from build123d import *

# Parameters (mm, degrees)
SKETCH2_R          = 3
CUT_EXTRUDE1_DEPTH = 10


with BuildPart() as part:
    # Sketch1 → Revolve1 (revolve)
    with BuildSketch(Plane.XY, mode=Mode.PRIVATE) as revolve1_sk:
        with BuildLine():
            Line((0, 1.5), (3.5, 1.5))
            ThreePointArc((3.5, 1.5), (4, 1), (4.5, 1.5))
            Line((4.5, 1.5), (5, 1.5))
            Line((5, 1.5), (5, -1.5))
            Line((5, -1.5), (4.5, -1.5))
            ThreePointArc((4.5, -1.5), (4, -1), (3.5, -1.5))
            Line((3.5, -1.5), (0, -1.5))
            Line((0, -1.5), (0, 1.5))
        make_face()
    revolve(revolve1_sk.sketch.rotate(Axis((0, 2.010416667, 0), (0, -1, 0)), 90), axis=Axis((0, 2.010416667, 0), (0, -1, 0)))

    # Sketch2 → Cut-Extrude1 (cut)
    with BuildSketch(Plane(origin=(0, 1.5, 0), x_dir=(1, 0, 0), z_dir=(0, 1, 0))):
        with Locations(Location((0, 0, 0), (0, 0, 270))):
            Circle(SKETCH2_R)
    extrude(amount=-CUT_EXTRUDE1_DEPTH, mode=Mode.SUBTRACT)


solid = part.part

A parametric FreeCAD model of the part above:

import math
import FreeCAD as App
import Part
import Sketcher
from FreeCAD import Vector

doc = App.newDocument("Part")
body = doc.addObject("PartDesign::Body", "Body")

sketch1 = doc.addObject("Sketcher::SketchObject", "Sketch")
body.addObject(sketch1)
sketch1.AttachmentSupport = (doc.XY_Plane, [""])
sketch1.MapMode = "FlatFace"
sketch1.addGeometry([
    Part.LineSegment(Vector(3.5, 1.5, 0), Vector(0, 1.5, 0)),
    Part.LineSegment(Vector(0, 1.5, 0), Vector(0, -1.5, 0)),
    Part.LineSegment(Vector(0, -1.5, 0), Vector(3.5, -1.5, 0)),
    Part.ArcOfCircle(Part.Circle(Vector(4, -1.5, 0), Vector(0, 0, 1), 0.5), math.radians(0), math.radians(180)),
    Part.LineSegment(Vector(4.5, -1.5, 0), Vector(5, -1.5, 0)),
    Part.LineSegment(Vector(5, -1.5, 0), Vector(5, 1.5, 0)),
    Part.LineSegment(Vector(5, 1.5, 0), Vector(4.5, 1.5, 0)),
    Part.ArcOfCircle(Part.Circle(Vector(4, 1.5, 0), Vector(0, 0, 1), 0.5), math.radians(180), math.radians(360)),
], False)
sketch1.addConstraint([
    Sketcher.Constraint("Coincident", 0, 2, 1, 1),
    Sketcher.Constraint("Coincident", 1, 2, 2, 1),
    Sketcher.Constraint("Coincident", 2, 2, 3, 2),
    Sketcher.Constraint("Coincident", 3, 1, 4, 1),
    Sketcher.Constraint("Coincident", 4, 2, 5, 1),
    Sketcher.Constraint("Coincident", 5, 2, 6, 1),
    Sketcher.Constraint("Coincident", 6, 2, 7, 2),
    Sketcher.Constraint("Coincident", 7, 1, 0, 1),
    Sketcher.Constraint("Horizontal", 0),
    Sketcher.Constraint("Vertical", 1),
    Sketcher.Constraint("Horizontal", 2),
    Sketcher.Constraint("Horizontal", 4),
    Sketcher.Constraint("Vertical", 5),
    Sketcher.Constraint("Horizontal", 6),
    Sketcher.Constraint("Equal", 3, 7),
    Sketcher.Constraint("Symmetric", 0, 2, 1, 2, -1, 1),
    Sketcher.Constraint("Symmetric", 3, 3, 7, 3, -1),
    Sketcher.Constraint("Horizontal", 7, 3, 0, 2),
    Sketcher.Constraint("Horizontal", 2, 2, 3, 1),
    Sketcher.Constraint("Horizontal", 0, 2, 5, 2),
    Sketcher.Constraint("Radius", 3, 0.5),
    Sketcher.Constraint("DistanceY", 1, 2, 1, 1, 3.0),
    Sketcher.Constraint("DistanceX", 0, 2, 0, 1, 3.5),
    Sketcher.Constraint("DistanceX", 4, 1, 4, 2, 0.5),
])
revolution = doc.addObject("PartDesign::Revolution", "Revolution")
body.addObject(revolution)
revolution.Profile = sketch1
revolution.ReferenceAxis = (sketch1, ["V_Axis"])
revolution.Angle = 360

sketch2 = doc.addObject("Sketcher::SketchObject", "Sketch001")
body.addObject(sketch2)
sketch2.AttachmentSupport = (doc.XZ_Plane, [""])
sketch2.MapMode = "FlatFace"
sketch2.AttachmentOffset = App.Placement(Vector(0, 0, -1.5), App.Rotation())
sketch2.addGeometry(Part.Circle(Vector(0, 0, 0), Vector(0, 0, 1), 3), False)
sketch2.addConstraint([
    Sketcher.Constraint("Coincident", 0, 3, -1, 1),
    Sketcher.Constraint("Diameter", 0, 6.0),
])
pocket1 = doc.addObject("PartDesign::Pocket", "Pocket")
body.addObject(pocket1)
pocket1.Profile = sketch2
pocket1.Length = 10
pocket1.Reversed = True

doc.recompute()
